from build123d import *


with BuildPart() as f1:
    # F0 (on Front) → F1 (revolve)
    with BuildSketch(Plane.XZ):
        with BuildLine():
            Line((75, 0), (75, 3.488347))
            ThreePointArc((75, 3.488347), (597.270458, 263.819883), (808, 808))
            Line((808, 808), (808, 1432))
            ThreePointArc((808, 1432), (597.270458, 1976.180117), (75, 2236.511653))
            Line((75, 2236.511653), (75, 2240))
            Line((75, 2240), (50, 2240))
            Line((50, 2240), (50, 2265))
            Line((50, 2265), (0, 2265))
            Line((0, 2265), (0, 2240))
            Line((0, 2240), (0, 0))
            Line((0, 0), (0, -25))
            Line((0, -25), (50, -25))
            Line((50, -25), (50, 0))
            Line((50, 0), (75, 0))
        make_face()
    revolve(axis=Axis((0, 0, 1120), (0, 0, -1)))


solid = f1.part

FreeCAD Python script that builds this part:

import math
import FreeCAD as App
import Part
import Sketcher
from FreeCAD import Vector

doc = App.newDocument("Part")
body = doc.addObject("PartDesign::Body", "Body")

sketch1 = body.newObject("Sketcher::SketchObject", "Sketch")
sketch1.AttachmentSupport = (doc.getObject("XZ_Plane"), [""])
sketch1.MapMode = "FlatFace"
sketch1.addGeometry([
    Part.LineSegment(Vector(75, 0, 0), Vector(75, 3.5, 0)),
    Part.ArcOfCircle(Part.Circle(Vector(0, 808, 0), Vector(0, 0, 1), 808), math.radians(-85), math.radians(0)),
    Part.LineSegment(Vector(808, 808, 0), Vector(808, 1432, 0)),
    Part.ArcOfCircle(Part.Circle(Vector(0, 1432, 0), Vector(0, 0, 1), 808), math.radians(0), math.radians(85)),
    Part.LineSegment(Vector(75, 2236.5, 0), Vector(75, 2240, 0)),
    Part.LineSegment(Vector(75, 2240, 0), Vector(50, 2240, 0)),
    Part.LineSegment(Vector(50, 2240, 0), Vector(50, 2265, 0)),
    Part.LineSegment(Vector(50, 2265, 0), Vector(0, 2265, 0)),
    Part.LineSegment(Vector(0, 2265, 0), Vector(0, -25, 0)),
    Part.LineSegment(Vector(0, -25, 0), Vector(50, -25, 0)),
    Part.LineSegment(Vector(50, -25, 0), Vector(50, 0, 0)),
    Part.LineSegment(Vector(50, 0, 0), Vector(75, 0, 0)),
], False)
sketch1.addConstraint([
    Sketcher.Constraint("Coincident", 0, 2, 1, 1),
    Sketcher.Constraint("Tangent", 1, 2, 2, 1),
    Sketcher.Constraint("Tangent", 2, 2, 3, 1),
    Sketcher.Constraint("Coincident", 3, 2, 4, 1),
    Sketcher.Constraint("Coincident", 4, 2, 5, 1),
    Sketcher.Constraint("Coincident", 5, 2, 6, 1),
    Sketcher.Constraint("Coincident", 6, 2, 7, 1),
    Sketcher.Constraint("Coincident", 7, 2, 8, 1),
    Sketcher.Constraint("Coincident", 8, 2, 9, 1),
    Sketcher.Constraint("Coincident", 9, 2, 10, 1),
    Sketcher.Constraint("Coincident", 10, 2, 11, 1),
    Sketcher.Constraint("Coincident", 11, 2, 0, 1),
    Sketcher.Constraint("Vertical", 0),
    Sketcher.Constraint("Vertical", 2),
    Sketcher.Constraint("Vertical", 4),
    Sketcher.Constraint("Horizontal", 5),
    Sketcher.Constraint("Vertical", 6),
    Sketcher.Constraint("Horizontal", 7),
    Sketcher.Constraint("Vertical", 8),
    Sketcher.Constraint("Horizontal", 9),
    Sketcher.Constraint("Vertical", 10),
    Sketcher.Constraint("Horizontal", 11),
    Sketcher.Constraint("Equal", 1, 3),
    Sketcher.Constraint("PointOnObject", 1, 3, -2),
    Sketcher.Constraint("PointOnObject", 7, 2, -2),
    Sketcher.Constraint("PointOnObject", 10, 2, -1),
    Sketcher.Constraint("Vertical", 6, 2, 9, 2),
    Sketcher.Constraint("Vertical", 4, 2, 11, 2),
    Sketcher.Constraint("Equal", 0, 4),
    Sketcher.Constraint("Equal", 11, 6),
    Sketcher.Constraint("Equal", 6, 10),
    Sketcher.Constraint("Radius", 1, 808.0),
    Sketcher.Constraint("DistanceX", 5, 2, 5, 1, 25.0),
    Sketcher.Constraint("DistanceX", 7, 2, 7, 1, 50.0),
    Sketcher.Constraint("DistanceY", 2, 1, 2, 2, 624.0),
    Sketcher.Constraint("DistanceY", 8, 2, 8, 1, 2290.0),
])
revolution = body.newObject("PartDesign::Revolution", "Revolution")
revolution.Profile = sketch1
revolution.ReferenceAxis = (sketch1, ["V_Axis"])
revolution.Angle = 360

doc.recompute()
